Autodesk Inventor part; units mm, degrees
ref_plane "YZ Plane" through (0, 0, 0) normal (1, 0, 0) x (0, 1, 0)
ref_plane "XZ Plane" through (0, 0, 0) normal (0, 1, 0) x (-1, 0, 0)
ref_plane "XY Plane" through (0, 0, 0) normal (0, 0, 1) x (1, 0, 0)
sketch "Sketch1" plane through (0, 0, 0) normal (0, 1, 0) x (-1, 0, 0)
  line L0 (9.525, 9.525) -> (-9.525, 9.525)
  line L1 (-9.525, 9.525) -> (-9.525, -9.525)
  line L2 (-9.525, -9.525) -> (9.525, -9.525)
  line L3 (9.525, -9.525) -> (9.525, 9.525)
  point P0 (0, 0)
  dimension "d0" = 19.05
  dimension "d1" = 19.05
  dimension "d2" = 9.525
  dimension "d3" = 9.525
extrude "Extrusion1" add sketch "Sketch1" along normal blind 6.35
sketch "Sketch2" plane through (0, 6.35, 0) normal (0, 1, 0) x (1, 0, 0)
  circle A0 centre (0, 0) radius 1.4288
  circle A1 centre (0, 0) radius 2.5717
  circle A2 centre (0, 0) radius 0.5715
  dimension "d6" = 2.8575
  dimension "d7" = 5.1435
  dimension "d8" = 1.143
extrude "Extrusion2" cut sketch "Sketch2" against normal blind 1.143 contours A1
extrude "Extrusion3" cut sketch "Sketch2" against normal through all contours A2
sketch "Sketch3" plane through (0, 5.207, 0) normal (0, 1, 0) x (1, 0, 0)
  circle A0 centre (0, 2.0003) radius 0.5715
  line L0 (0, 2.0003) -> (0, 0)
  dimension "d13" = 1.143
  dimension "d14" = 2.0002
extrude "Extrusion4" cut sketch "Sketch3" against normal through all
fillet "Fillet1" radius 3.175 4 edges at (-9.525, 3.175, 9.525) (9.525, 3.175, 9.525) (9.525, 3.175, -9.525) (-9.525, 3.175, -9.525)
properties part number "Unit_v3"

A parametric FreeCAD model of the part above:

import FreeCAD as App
import Part
import Sketcher
from FreeCAD import Vector
Q = App.Units.Quantity


def edges_at(feature, points):
    """Names of the edges that pass closest to the given points."""
    edges = feature.Shape.Edges
    near = lambda p: min(range(len(edges)), key=lambda i: edges[i].distToShape(Part.Vertex(*p))[0])
    return sorted({f"Edge{near(p) + 1}" for p in points})

doc = App.newDocument("Part")
body = doc.addObject("PartDesign::Body", "Body")

sketch1 = doc.addObject("Sketcher::SketchObject", "Sketch")
body.addObject(sketch1)
sketch1.AttachmentSupport = (doc.XZ_Plane, [""])
sketch1.MapMode = "FlatFace"
sketch1.addGeometry([
    Part.LineSegment(Vector(-10, -10, 0), Vector(-10, 10, 0)),
    Part.LineSegment(Vector(-10, 10, 0), Vector(10, 10, 0)),
    Part.LineSegment(Vector(10, 10, 0), Vector(10, -10, 0)),
    Part.LineSegment(Vector(10, -10, 0), Vector(-10, -10, 0)),
], False)
sketch1.addConstraint([
    Sketcher.Constraint("Coincident", 0, 2, 1, 1),
    Sketcher.Constraint("Coincident", 1, 2, 2, 1),
    Sketcher.Constraint("Coincident", 2, 2, 3, 1),
    Sketcher.Constraint("Coincident", 3, 2, 0, 1),
    Sketcher.Constraint("Vertical", 0),
    Sketcher.Constraint("Horizontal", 1),
    Sketcher.Constraint("Vertical", 2),
    Sketcher.Constraint("Horizontal", 3),
    Sketcher.Constraint("Symmetric", 0, 2, 2, 2, -1, 1),
    Sketcher.Constraint("Equal", 3, 0),
    Sketcher.Constraint("DistanceX", 1, 1, 1, 2, Q("0.75 in")),
])
pad1 = doc.addObject("PartDesign::Pad", "Pad")
body.addObject(pad1)
pad1.Profile = sketch1
pad1.Length = Q("0.25 in")
pad1.Reversed = True

sketch2 = doc.addObject("Sketcher::SketchObject", "Sketch001")
body.addObject(sketch2)
sketch2.AttachmentSupport = (doc.XZ_Plane, [""])
sketch2.MapMode = "FlatFace"
sketch2.AttachmentOffset = App.Placement(Vector(0, 0, -0.25 * 25.4), App.Rotation())
sketch2.addGeometry([
    Part.Circle(Vector(0, 0, 0), Vector(0, 0, 1), 2.6),
    Part.Circle(Vector(0, 0, 0), Vector(0, 0, 1), 1.4),
], False)
sketch2.addConstraint([
    Sketcher.Constraint("Coincident", 0, 3, -1, 1),
    Sketcher.Constraint("Coincident", 1, 3, -1, 1),
    Sketcher.Constraint("Diameter", 0, Q("0.2025 in")),
    Sketcher.Constraint("Diameter", 1, Q("0.1125 in")),
])
pocket1 = doc.addObject("PartDesign::Pocket", "Pocket")
body.addObject(pocket1)
pocket1.Profile = sketch2
pocket1.Length = Q("0.045 in")
pocket1.Reversed = True

sketch3 = doc.addObject("Sketcher::SketchObject", "Sketch002")
body.addObject(sketch3)
sketch3.AttachmentSupport = (doc.XZ_Plane, [""])
sketch3.MapMode = "FlatFace"
sketch3.AttachmentOffset = App.Placement(Vector(0, 0, -0.25 * 25.4), App.Rotation())
sketch3.addGeometry(Part.Circle(Vector(0, 0, 0), Vector(0, 0, 1), 0.6), False)
sketch3.addConstraint([
    Sketcher.Constraint("Coincident", 0, 3, -1, 1),
    Sketcher.Constraint("Diameter", 0, Q("0.045 in")),
])
pocket2 = doc.addObject("PartDesign::Pocket", "Pocket001")
body.addObject(pocket2)
pocket2.Profile = sketch3
pocket2.Type = "ThroughAll"
pocket2.Reversed = True

sketch4 = doc.addObject("Sketcher::SketchObject", "Sketch003")
body.addObject(sketch4)
sketch4.AttachmentSupport = (doc.XZ_Plane, [""])
sketch4.MapMode = "FlatFace"
sketch4.AttachmentOffset = App.Placement(Vector(0, 0, -0.205 * 25.4), App.Rotation())
sketch4.addGeometry(Part.Circle(Vector(0, -2, 0), Vector(0, 0, 1), 0.6), False)
sketch4.addConstraint([
    Sketcher.Constraint("PointOnObject", 0, 3, -2),
    Sketcher.Constraint("Diameter", 0, Q("0.045 in")),
    Sketcher.Constraint("DistanceY", 0, 3, -1, 1, Q("2.0003 mm")),
])
pocket3 = doc.addObject("PartDesign::Pocket", "Pocket002")
body.addObject(pocket3)
pocket3.Profile = sketch4
pocket3.Type = "ThroughAll"
pocket3.Reversed = True
doc.recompute()

fillet = doc.addObject("PartDesign::Fillet", "Fillet")
body.addObject(fillet)
fillet.Base = (pocket3, edges_at(pocket3, [
    (-9.525, 3.175, 9.525),
    (9.525, 3.175, 9.525),
    (9.525, 3.175, -9.525),
    (-9.525, 3.175, -9.525),
]))
fillet.Radius = Q("0.125 in")

doc.recompute()
